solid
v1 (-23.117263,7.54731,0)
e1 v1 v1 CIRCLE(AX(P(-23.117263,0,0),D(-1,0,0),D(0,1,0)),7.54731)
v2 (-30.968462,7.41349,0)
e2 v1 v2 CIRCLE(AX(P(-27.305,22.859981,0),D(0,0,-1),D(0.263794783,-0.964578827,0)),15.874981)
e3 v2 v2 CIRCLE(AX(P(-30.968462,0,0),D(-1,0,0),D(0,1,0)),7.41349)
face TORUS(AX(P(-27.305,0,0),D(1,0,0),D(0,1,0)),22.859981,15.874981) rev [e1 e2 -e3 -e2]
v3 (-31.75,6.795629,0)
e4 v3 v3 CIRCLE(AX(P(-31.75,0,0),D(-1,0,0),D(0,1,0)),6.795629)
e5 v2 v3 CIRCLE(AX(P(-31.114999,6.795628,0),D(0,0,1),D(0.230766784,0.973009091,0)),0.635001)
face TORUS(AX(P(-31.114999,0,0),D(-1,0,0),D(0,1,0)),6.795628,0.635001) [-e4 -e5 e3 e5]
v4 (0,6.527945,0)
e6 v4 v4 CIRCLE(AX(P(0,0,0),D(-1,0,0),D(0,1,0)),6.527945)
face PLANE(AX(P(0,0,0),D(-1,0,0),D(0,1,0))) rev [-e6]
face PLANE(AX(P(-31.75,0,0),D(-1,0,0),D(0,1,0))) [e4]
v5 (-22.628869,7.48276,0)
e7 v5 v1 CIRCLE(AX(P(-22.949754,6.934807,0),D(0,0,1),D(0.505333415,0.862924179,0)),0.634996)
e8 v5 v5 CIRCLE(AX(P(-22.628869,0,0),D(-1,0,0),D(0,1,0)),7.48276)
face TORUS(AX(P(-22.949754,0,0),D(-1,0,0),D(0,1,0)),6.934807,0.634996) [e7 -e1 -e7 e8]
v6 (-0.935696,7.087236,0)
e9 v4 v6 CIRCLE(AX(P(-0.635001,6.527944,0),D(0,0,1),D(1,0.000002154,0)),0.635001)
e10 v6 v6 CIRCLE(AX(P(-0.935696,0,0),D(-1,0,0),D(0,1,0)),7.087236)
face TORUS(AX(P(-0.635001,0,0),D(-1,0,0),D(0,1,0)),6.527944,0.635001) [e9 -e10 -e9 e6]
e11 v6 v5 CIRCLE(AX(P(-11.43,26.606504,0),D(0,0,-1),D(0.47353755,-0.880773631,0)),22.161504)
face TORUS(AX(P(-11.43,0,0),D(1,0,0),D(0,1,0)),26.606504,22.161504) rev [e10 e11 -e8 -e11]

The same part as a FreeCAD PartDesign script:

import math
import FreeCAD as App
import Part
import Sketcher
from FreeCAD import Vector
Q = App.Units.Quantity

doc = App.newDocument("Part")
params = doc.addObject("Spreadsheet::Sheet", "Params")
for row, (alias, value) in enumerate([
    ("sketch1_radius", "0.025 in"),
    ("sketch1_radius2", "0.0249998 in"),
    ("sketch1_width", "1.25 in"),
    ("revolution_angle", "360 deg"),
], start=1):
    params.set(f"A{row}", alias)
    params.set(f"B{row}", "=" + value)
    params.setAlias(f"B{row}", alias)

body = doc.addObject("PartDesign::Body", "Body")

sketch1 = body.newObject("Sketcher::SketchObject", "Sketch")
sketch1.AttachmentSupport = (doc.getObject("XY_Plane"), [""])
sketch1.MapMode = "FlatFace"
sketch1.addGeometry(Part.LineSegment(Vector(-31.75, 0, 0), Vector(0, 0, 0)), False)
sketch1.addGeometry(Part.LineSegment(Vector(0, 0, 0), Vector(0, 6.53, 0)), False)
sketch1.addGeometry(Part.ArcOfCircle(Part.Circle(Vector(-0.64, 6.53, 0), Vector(0, 0, 1), 0.64), math.radians(0), math.radians(118)), False)
sketch1.addGeometry(Part.ArcOfCircle(Part.Circle(Vector(-11.43, 26.61, 0), Vector(0, 0, 1), 22.16), math.radians(-120), math.radians(-62)), False)
sketch1.addGeometry(Part.ArcOfCircle(Part.Circle(Vector(-22.95, 6.93, 0), Vector(0, 0, 1), 0.63), math.radians(60), math.radians(105)), False)
sketch1.addGeometry(Part.ArcOfCircle(Part.Circle(Vector(-27.31, 22.86, 0), Vector(0, 0, 1), 15.87), math.radians(-103), math.radians(-75)), False)
sketch1.addGeometry(Part.ArcOfCircle(Part.Circle(Vector(-31.11, 6.8, 0), Vector(0, 0, 1), 0.64), math.radians(77), math.radians(180)), False)
sketch1.addGeometry(Part.LineSegment(Vector(-31.75, 6.8, 0), Vector(-31.75, 0, 0)), False)
sketch1.addConstraint(Sketcher.Constraint("Coincident", 0, 2, 1, 1))
sketch1.addConstraint(Sketcher.Constraint("Coincident", 1, 2, 2, 1))
sketch1.addConstraint(Sketcher.Constraint("Coincident", 2, 2, 3, 2))
sketch1.addConstraint(Sketcher.Constraint("Coincident", 3, 1, 4, 1))
sketch1.addConstraint(Sketcher.Constraint("Tangent", 4, 2, 5, 2))
sketch1.addConstraint(Sketcher.Constraint("Coincident", 5, 1, 6, 1))
sketch1.addConstraint(Sketcher.Constraint("Tangent", 6, 2, 7, 1))
sketch1.addConstraint(Sketcher.Constraint("Coincident", 7, 2, 0, 1))
sketch1.addConstraint(Sketcher.Constraint("Horizontal", 0))
sketch1.addConstraint(Sketcher.Constraint("Vertical", 1))
sketch1.addConstraint(Sketcher.Constraint("Vertical", 7))
sketch1.addConstraint(Sketcher.Constraint("Coincident", 0, 2, -1, 1))
sketch1.addConstraint(Sketcher.Constraint("Equal", 2, 6))
sketch1.addConstraint(Sketcher.Constraint("Horizontal", 2, 3, 1, 2))
sketch1.addConstraint(Sketcher.Constraint("Radius", 2, Q("0.025 in")))
sketch1.addConstraint(Sketcher.Constraint("Radius", 4, Q("0.0249998 in")))
sketch1.addConstraint(Sketcher.Constraint("DistanceX", 0, 1, 0, 2, Q("1.25 in")))
sketch1.addConstraint(Sketcher.Constraint("Radius", 3, Q("0.8725002 in")))
sketch1.addConstraint(Sketcher.Constraint("DistanceX", 3, 3, -1, 1, Q("0.45 in")))
sketch1.addConstraint(Sketcher.Constraint("DistanceX", 5, 3, 2, 3, Q("1.05 in")))
sketch1.addConstraint(Sketcher.Constraint("Radius", 5, 15.874981))
sketch1.addConstraint(Sketcher.Constraint("DistanceY", -1, 1, 3, 3, Q("1.0475002 in")))
sketch1.addConstraint(Sketcher.Constraint("DistanceY", 7, 2, 7, 1, 6.795629))
sketch1.addConstraint(Sketcher.Constraint("DistanceX", 5, 1, 4, 2, 7.851199))
sketch1.addConstraint(Sketcher.Constraint("DistanceX", 3, 1, -1, 1, 22.628869))
sketch1.addConstraint(Sketcher.Constraint("DistanceY", 1, 2, 2, 2, 0.559291))
sketch1.setExpression("Constraints[14]", "Params.sketch1_radius")
sketch1.setExpression("Constraints[15]", "Params.sketch1_radius2")
sketch1.setExpression("Constraints[16]", "Params.sketch1_width")
revolution = body.newObject("PartDesign::Revolution", "Revolution")
revolution.Profile = sketch1
revolution.ReferenceAxis = (sketch1, ["H_Axis"])
revolution.setExpression("Angle", "Params.revolution_angle")

doc.recompute()
